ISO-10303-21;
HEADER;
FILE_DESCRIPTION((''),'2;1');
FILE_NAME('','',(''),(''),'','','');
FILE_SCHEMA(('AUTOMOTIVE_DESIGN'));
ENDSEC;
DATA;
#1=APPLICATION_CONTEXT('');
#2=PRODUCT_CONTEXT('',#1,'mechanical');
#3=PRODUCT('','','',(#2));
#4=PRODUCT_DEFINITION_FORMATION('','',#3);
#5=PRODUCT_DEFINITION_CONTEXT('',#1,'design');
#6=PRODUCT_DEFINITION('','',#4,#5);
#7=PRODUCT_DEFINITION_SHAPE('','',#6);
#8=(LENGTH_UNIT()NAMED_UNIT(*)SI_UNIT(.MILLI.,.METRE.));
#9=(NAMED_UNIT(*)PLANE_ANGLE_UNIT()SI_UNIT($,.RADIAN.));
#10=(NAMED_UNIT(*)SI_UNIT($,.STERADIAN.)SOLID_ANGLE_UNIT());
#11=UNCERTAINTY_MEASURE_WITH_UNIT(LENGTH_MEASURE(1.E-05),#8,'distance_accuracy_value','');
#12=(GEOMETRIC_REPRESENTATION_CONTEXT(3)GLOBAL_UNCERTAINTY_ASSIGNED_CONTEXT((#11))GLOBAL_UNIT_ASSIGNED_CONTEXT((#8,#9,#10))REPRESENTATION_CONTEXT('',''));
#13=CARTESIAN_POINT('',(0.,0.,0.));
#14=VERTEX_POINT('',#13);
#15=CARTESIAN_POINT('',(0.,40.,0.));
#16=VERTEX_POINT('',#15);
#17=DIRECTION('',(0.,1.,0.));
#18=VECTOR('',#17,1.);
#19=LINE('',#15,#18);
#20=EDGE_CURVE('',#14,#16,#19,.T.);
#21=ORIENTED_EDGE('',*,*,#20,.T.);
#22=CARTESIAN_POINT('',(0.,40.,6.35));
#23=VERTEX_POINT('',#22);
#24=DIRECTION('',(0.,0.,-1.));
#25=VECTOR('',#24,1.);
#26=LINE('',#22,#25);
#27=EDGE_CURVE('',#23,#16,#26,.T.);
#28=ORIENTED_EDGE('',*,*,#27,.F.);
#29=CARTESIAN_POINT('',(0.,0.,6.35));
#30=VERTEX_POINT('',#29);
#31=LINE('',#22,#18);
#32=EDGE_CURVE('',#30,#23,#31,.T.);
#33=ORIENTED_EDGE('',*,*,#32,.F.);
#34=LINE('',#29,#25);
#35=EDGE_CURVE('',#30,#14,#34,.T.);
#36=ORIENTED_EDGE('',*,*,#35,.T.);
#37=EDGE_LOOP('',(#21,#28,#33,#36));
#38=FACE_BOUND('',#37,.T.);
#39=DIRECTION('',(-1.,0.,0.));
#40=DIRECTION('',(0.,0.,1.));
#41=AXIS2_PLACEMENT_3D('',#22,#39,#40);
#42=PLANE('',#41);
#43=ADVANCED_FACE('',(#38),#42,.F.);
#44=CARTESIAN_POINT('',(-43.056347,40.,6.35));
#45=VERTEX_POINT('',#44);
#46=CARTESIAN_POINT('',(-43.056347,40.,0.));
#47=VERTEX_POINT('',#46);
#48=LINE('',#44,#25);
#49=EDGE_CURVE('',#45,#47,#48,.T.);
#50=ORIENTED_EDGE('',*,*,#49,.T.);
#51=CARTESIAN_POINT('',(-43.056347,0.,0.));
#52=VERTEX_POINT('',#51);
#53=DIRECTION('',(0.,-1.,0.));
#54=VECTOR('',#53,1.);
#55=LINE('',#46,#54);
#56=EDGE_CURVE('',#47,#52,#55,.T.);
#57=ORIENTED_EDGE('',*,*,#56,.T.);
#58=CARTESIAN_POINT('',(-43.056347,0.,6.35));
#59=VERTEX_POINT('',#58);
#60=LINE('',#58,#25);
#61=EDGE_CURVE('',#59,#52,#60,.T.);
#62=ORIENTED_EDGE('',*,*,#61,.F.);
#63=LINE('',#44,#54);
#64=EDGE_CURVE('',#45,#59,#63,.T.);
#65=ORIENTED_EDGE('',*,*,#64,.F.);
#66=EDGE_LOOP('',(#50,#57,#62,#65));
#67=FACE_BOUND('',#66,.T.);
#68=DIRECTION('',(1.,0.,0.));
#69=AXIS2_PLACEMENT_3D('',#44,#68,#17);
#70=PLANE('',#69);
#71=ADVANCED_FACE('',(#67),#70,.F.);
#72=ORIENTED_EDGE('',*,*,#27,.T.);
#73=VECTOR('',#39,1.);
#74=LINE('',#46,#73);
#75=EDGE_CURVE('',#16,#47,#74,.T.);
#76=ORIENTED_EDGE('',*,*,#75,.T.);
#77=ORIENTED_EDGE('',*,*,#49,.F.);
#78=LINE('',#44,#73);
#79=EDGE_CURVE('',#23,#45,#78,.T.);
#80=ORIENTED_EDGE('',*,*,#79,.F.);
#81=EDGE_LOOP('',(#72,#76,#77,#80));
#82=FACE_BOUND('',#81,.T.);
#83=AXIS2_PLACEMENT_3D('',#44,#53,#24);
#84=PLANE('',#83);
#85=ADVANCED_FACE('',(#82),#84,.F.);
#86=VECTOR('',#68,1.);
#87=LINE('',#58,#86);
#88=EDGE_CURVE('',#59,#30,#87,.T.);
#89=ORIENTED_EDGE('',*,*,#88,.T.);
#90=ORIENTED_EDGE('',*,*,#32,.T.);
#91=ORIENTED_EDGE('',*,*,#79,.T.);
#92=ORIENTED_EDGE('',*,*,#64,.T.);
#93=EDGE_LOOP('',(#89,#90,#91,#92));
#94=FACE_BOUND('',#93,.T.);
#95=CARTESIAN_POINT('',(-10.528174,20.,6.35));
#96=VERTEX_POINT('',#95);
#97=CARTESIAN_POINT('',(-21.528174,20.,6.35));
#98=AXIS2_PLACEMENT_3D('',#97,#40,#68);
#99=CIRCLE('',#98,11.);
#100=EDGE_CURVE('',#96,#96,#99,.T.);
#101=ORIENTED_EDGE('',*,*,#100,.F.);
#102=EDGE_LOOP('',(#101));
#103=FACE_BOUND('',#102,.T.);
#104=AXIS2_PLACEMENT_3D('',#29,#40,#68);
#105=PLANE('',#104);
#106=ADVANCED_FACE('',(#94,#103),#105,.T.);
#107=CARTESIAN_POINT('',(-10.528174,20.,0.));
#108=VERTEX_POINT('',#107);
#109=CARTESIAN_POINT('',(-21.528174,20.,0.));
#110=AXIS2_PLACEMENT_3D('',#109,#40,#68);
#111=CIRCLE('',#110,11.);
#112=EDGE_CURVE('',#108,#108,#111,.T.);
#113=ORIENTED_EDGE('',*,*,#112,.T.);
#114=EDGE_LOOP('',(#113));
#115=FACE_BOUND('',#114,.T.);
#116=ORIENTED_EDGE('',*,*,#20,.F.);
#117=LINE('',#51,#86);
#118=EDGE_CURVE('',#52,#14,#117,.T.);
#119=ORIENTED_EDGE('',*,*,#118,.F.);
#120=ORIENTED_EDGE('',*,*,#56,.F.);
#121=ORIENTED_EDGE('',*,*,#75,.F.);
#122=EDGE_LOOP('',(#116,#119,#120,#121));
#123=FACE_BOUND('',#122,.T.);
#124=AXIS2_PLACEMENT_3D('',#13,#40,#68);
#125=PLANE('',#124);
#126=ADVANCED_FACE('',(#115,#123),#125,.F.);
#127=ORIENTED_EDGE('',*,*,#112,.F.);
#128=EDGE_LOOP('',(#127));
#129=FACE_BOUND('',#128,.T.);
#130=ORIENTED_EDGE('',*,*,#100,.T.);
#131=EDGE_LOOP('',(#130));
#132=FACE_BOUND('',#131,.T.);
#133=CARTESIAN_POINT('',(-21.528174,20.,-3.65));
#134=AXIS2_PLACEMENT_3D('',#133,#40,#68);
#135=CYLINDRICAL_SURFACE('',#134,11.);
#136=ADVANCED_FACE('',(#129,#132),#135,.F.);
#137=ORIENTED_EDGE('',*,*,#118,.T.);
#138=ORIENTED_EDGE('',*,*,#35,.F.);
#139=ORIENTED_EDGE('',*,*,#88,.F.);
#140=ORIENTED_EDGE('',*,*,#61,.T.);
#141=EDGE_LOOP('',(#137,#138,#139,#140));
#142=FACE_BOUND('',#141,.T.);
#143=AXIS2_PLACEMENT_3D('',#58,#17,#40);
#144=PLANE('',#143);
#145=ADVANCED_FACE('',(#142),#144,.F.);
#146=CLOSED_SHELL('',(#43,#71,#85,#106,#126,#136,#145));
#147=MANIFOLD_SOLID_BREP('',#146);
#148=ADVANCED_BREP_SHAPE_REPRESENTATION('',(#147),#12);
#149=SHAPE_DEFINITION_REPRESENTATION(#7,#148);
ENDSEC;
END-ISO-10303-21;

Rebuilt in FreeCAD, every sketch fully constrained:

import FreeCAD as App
import Part
import Sketcher

V = App.Vector


def add_polygon(sketch, points):
    """Adds a closed chain of lines whose ends are joined by coincident constraints."""
    first, n = sketch.GeometryCount, len(points)
    for a, b in zip(points, points[1:] + points[:1]):
        sketch.addGeometry(Part.LineSegment(App.Vector(*a, 0), App.Vector(*b, 0)), False)
    for i in range(n):
        sketch.addConstraint(Sketcher.Constraint("Coincident", first + i, 2, first + (i + 1) % n, 1))

doc = App.newDocument("Part")
body = doc.addObject("PartDesign::Body", "Body")

sketch1 = body.newObject("Sketcher::SketchObject", "Sketch")
sketch1.AttachmentSupport = (doc.getObject("XY_Plane"), [""])
sketch1.MapMode = "FlatFace"
add_polygon(sketch1, [(-43, 40), (-43, 0), (0, 0), (0, 40)])
sketch1.addConstraint(Sketcher.Constraint("Vertical", 0))
sketch1.addConstraint(Sketcher.Constraint("Horizontal", 1))
sketch1.addConstraint(Sketcher.Constraint("Vertical", 2))
sketch1.addConstraint(Sketcher.Constraint("Horizontal", 3))
sketch1.addConstraint(Sketcher.Constraint("Coincident", 1, 2, -1, 1))
sketch1.addConstraint(Sketcher.Constraint("DistanceY", 0, 2, 0, 1, 40.0))
sketch1.addConstraint(Sketcher.Constraint("DistanceX", 1, 1, 1, 2, 43.056347))
pad1 = body.newObject("PartDesign::Pad", "Pad")
pad1.Profile = sketch1
pad1.Length = 6.35

sketch2 = body.newObject("Sketcher::SketchObject", "Sketch001")
sketch2.AttachmentSupport = (doc.getObject("XY_Plane"), [""])
sketch2.MapMode = "FlatFace"
sketch2.AttachmentOffset = App.Placement(V(0, 0, 6.35), App.Rotation())
sketch2.addGeometry(Part.Circle(V(-22, 20, 0), V(0, 0, 1), 11), False)
sketch2.addConstraint(Sketcher.Constraint("Diameter", 0, 22.0))
sketch2.addConstraint(Sketcher.Constraint("DistanceY", -1, 1, 0, 3, 20.0))
sketch2.addConstraint(Sketcher.Constraint("DistanceX", 0, 3, -1, 1, 21.528174))
pocket1 = body.newObject("PartDesign::Pocket", "Pocket")
pocket1.Profile = sketch2
pocket1.Length = 10

doc.recompute()
